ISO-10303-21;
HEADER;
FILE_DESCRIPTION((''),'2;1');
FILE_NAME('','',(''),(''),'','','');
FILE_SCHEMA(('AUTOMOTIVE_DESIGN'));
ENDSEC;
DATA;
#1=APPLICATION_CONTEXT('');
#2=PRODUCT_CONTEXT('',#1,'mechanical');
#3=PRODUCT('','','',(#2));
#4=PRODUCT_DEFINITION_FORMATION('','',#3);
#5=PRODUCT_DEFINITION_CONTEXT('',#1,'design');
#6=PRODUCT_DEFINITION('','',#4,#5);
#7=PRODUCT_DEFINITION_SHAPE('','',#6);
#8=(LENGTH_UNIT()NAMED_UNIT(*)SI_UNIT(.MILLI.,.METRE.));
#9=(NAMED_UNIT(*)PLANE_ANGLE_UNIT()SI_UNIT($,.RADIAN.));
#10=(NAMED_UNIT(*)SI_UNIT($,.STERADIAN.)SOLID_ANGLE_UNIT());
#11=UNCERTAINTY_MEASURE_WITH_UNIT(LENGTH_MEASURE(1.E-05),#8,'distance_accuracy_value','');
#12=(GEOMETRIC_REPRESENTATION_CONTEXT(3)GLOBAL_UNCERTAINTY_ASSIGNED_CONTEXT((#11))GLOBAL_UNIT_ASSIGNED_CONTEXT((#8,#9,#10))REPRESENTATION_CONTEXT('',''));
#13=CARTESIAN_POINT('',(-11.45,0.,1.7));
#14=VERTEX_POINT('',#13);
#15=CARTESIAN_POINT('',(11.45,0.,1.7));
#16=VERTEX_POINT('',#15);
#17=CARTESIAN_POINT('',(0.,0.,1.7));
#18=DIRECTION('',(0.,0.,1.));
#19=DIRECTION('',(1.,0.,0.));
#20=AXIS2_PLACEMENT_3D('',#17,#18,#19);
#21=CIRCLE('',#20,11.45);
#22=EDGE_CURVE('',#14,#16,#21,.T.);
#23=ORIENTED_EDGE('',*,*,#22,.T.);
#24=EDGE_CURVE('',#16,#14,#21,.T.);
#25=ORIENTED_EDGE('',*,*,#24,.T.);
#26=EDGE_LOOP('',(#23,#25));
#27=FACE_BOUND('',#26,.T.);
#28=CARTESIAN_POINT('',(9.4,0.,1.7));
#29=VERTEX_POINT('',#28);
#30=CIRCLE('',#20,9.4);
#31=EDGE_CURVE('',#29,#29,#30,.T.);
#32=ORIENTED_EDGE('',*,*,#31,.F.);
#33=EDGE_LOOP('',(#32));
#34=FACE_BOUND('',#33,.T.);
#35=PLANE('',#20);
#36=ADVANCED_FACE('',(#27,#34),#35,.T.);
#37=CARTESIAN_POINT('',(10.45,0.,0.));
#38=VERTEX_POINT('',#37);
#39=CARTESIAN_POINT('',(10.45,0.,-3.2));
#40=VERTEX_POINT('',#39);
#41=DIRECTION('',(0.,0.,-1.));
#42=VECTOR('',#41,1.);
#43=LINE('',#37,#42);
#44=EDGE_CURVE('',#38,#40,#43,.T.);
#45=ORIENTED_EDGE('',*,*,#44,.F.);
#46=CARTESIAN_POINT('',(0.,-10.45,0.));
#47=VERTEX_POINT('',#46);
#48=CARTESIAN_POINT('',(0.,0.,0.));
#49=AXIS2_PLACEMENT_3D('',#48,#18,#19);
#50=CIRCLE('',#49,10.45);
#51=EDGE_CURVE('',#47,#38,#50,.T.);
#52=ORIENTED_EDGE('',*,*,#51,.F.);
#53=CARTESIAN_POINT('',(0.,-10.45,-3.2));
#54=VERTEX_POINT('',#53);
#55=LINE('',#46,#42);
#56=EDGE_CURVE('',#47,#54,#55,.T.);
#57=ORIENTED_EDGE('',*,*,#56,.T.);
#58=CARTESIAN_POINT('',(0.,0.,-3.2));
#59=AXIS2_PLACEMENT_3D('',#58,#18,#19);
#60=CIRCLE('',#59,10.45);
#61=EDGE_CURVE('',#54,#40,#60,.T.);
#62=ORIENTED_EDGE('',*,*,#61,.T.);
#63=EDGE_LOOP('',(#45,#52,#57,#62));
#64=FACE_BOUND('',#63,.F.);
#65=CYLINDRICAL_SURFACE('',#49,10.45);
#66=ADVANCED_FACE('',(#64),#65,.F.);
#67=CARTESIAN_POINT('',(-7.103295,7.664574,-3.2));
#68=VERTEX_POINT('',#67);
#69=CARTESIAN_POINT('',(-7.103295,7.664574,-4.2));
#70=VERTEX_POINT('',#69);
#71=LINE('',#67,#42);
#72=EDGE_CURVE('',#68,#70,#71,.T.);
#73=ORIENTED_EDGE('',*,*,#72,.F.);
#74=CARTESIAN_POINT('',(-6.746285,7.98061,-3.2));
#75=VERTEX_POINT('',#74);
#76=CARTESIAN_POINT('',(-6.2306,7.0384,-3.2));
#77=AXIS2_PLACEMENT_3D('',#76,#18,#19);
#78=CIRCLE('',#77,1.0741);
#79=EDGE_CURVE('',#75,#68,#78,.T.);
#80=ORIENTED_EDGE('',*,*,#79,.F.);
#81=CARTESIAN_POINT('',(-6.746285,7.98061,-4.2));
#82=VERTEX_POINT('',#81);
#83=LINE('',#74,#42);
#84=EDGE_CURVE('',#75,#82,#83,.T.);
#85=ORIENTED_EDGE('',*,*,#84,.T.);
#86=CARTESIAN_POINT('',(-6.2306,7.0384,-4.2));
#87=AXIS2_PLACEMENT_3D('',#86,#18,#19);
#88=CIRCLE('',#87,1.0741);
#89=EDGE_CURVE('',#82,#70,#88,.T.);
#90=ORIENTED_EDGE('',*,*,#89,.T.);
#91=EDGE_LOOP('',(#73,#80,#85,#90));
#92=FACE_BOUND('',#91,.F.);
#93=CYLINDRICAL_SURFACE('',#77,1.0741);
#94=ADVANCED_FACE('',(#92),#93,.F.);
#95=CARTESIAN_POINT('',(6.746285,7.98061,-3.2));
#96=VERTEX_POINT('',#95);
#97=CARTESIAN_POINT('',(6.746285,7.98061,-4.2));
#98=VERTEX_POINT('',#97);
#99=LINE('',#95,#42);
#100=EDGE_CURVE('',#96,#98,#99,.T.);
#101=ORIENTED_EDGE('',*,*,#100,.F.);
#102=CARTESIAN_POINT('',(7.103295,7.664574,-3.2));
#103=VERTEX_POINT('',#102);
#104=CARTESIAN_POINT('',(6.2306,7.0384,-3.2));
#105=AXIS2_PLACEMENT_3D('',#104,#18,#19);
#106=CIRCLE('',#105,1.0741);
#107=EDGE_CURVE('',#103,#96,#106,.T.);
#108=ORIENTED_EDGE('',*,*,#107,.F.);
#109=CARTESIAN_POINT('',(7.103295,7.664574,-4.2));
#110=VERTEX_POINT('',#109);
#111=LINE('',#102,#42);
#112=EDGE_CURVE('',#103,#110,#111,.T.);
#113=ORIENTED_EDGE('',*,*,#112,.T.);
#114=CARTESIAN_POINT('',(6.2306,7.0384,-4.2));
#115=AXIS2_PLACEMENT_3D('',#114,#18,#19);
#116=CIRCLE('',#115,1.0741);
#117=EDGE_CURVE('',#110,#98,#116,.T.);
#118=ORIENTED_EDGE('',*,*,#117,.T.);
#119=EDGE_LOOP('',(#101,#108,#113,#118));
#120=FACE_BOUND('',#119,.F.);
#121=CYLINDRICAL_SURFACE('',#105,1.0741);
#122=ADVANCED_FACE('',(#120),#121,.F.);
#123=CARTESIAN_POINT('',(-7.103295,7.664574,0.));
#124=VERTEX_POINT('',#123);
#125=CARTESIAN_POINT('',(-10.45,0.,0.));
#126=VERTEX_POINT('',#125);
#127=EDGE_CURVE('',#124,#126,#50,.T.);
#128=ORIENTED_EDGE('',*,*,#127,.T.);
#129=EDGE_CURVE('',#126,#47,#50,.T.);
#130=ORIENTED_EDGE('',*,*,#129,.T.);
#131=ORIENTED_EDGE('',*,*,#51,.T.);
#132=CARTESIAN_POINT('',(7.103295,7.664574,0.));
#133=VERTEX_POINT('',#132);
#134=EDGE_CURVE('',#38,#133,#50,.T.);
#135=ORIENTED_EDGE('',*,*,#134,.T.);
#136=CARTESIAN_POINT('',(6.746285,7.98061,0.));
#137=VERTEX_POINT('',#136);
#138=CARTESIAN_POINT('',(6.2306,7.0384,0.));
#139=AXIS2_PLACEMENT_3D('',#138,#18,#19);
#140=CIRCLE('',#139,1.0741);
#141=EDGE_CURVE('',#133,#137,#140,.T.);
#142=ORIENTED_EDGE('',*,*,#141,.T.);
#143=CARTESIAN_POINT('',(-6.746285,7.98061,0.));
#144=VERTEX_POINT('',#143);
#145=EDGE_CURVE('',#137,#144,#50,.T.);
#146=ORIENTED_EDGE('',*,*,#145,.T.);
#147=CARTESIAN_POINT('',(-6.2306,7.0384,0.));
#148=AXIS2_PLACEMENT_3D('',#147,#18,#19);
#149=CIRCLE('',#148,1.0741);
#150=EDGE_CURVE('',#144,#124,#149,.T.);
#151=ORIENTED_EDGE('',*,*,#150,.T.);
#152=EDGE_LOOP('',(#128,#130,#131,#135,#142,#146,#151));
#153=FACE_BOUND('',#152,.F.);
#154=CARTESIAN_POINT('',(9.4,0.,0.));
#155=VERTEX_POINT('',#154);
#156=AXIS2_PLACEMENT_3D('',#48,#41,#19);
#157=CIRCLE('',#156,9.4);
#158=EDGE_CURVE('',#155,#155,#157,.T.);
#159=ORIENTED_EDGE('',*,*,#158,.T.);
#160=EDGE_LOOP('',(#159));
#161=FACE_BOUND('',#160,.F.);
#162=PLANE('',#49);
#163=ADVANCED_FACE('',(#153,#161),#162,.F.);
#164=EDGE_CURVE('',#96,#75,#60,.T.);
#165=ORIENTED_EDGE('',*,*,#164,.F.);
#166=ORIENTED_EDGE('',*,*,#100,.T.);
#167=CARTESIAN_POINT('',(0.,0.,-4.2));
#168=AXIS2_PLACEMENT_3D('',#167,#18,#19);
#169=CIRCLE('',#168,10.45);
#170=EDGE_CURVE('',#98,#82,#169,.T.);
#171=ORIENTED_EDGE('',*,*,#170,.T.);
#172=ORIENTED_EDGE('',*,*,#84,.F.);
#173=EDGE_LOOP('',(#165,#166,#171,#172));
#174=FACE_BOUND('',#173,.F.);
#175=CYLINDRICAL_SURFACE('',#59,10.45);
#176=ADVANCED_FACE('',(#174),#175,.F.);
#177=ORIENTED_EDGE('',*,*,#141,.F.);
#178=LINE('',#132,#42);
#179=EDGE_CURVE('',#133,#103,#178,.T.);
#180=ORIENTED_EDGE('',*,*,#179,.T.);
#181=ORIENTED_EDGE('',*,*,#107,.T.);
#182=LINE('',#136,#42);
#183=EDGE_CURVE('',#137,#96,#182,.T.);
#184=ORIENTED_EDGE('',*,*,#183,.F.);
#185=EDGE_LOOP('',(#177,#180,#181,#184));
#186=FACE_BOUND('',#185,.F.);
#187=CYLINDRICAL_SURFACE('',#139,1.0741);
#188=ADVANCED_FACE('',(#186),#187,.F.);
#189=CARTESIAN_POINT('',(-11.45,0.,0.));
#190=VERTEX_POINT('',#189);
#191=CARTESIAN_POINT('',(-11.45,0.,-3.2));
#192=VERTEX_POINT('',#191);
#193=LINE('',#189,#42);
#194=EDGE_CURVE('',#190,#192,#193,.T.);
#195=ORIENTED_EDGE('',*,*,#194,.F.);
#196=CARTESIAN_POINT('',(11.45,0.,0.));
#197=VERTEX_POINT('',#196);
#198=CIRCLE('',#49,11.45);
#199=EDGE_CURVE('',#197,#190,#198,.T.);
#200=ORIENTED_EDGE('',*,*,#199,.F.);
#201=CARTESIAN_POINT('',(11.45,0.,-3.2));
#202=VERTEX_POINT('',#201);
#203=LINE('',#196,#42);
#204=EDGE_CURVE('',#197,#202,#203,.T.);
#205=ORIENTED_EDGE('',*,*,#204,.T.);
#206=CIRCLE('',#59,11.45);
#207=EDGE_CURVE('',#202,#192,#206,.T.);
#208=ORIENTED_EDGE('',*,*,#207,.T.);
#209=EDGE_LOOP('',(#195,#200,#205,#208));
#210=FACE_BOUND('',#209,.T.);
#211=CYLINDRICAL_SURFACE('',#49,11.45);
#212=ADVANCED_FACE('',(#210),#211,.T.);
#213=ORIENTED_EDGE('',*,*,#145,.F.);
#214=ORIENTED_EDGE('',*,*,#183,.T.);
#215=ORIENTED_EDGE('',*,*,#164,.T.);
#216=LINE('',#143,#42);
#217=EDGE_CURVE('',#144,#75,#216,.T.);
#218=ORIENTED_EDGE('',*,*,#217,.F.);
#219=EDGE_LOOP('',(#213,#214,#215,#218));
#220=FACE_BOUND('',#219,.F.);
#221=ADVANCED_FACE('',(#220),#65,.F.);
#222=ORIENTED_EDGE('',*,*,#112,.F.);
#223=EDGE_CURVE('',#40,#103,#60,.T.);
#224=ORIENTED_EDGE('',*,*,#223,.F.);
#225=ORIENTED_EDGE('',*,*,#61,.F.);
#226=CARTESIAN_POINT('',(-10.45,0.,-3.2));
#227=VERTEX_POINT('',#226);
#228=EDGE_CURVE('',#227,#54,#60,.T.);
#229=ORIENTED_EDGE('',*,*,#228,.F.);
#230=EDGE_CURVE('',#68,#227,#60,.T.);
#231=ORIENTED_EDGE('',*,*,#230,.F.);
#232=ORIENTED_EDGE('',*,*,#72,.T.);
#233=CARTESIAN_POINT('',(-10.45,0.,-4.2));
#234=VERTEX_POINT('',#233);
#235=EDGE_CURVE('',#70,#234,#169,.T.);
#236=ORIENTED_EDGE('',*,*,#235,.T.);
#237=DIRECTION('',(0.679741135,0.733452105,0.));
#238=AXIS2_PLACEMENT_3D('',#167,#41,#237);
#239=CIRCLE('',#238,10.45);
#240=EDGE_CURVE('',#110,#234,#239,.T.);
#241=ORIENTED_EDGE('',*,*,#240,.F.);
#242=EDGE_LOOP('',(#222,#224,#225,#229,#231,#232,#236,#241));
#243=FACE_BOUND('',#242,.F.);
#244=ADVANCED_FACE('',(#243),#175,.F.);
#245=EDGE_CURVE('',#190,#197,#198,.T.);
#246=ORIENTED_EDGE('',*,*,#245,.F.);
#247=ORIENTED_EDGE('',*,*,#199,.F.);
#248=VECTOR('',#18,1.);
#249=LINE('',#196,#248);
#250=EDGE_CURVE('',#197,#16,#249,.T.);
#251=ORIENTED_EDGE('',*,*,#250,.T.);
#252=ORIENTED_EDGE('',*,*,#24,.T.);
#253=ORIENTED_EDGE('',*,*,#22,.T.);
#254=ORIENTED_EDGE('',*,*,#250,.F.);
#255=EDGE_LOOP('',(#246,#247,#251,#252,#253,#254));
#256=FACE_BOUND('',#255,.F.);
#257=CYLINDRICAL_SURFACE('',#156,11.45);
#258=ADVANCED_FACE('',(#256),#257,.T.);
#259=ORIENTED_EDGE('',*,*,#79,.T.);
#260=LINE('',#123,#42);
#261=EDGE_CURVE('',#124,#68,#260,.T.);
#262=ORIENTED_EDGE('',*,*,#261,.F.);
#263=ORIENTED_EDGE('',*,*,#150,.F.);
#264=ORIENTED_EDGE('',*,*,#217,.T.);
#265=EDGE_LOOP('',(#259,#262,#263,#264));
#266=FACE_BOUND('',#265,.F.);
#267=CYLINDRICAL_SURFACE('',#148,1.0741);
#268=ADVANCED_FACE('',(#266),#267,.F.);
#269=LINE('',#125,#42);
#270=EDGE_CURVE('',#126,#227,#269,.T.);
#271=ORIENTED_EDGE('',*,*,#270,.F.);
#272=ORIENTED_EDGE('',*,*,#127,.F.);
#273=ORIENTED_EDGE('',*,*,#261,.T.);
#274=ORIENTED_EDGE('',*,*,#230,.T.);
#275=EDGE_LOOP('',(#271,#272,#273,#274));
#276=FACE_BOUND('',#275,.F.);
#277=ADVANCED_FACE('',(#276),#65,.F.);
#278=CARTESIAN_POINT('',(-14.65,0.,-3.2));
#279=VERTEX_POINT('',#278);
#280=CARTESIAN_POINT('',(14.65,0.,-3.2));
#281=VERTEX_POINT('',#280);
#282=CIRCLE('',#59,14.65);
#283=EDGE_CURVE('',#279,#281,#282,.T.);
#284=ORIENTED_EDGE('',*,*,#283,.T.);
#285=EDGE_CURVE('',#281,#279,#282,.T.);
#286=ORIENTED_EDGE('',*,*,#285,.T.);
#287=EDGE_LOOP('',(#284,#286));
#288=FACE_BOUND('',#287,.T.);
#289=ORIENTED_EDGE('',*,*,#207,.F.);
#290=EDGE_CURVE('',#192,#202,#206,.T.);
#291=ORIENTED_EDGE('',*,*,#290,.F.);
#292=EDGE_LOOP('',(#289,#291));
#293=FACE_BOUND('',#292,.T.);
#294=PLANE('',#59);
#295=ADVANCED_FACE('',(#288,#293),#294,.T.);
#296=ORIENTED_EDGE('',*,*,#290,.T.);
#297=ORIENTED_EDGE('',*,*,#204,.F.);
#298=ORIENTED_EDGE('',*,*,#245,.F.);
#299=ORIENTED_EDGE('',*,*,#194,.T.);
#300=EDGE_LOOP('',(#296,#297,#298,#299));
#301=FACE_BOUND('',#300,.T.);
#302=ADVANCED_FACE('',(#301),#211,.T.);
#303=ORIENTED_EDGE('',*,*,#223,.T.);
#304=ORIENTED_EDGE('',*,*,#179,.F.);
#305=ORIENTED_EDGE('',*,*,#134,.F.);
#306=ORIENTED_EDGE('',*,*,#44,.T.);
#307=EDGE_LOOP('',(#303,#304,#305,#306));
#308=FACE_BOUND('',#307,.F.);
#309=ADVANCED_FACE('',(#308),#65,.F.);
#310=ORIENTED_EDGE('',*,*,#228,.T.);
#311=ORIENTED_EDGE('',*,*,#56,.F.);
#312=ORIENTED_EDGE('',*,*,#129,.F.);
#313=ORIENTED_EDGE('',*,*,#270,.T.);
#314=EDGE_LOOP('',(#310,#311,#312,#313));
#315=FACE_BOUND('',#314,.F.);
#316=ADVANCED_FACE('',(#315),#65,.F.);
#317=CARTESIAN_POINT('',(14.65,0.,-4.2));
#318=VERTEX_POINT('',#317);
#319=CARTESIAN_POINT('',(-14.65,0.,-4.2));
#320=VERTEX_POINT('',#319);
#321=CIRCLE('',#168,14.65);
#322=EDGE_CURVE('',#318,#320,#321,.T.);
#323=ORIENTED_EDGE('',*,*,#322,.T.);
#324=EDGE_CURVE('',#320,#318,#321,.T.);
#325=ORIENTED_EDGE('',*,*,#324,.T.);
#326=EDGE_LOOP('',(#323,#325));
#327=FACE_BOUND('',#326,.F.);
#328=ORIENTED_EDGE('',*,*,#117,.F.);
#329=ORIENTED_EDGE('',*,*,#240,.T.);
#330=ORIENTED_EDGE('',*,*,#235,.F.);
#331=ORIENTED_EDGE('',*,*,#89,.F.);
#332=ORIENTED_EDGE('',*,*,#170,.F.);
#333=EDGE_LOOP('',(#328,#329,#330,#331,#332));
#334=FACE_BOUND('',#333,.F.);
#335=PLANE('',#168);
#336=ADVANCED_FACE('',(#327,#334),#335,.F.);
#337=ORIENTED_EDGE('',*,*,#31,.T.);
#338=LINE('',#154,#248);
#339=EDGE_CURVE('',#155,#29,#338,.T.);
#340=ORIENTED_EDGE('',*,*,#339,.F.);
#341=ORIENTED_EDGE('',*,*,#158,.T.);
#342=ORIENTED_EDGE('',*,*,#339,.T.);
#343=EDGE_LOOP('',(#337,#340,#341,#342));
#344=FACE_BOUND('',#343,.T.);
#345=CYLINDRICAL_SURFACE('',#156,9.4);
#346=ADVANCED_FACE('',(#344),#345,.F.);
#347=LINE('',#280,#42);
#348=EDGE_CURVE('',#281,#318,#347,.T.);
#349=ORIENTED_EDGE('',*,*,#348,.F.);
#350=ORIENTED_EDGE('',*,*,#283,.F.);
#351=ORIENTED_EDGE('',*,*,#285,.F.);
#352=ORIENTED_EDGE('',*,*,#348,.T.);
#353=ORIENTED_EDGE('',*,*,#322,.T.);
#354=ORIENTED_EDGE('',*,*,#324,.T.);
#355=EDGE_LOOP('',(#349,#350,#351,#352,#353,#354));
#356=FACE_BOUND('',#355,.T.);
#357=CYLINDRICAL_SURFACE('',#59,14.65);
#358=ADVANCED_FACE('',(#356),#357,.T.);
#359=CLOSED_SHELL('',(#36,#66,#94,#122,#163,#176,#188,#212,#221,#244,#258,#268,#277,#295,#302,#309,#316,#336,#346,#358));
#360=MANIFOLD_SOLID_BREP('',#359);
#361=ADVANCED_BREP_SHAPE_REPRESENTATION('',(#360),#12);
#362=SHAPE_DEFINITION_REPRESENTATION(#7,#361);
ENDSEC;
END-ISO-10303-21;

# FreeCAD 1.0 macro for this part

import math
import FreeCAD as App
import Part
import Sketcher

V = App.Vector
Q = App.Units.Quantity

doc = App.newDocument("Part")
params = doc.addObject("Spreadsheet::Sheet", "Params")
for row, (alias, value) in enumerate([
    ("sketch1_diameter", "18.8 mm"),
    ("sketch1_diameter2", "22.9 mm"),
    ("pad1_length", "1.7 mm"),
    ("sketch2_radius", "10.45 mm"),
    ("sketch2_diameter", "22.9 mm"),
    ("pad2_length", "3.2 mm"),
    ("sketch3_radius", "10.45 mm"),
    ("sketch3_diameter", "29.3 mm"),
    ("pad3_length", "1 mm"),
], start=1):
    params.set(f"A{row}", alias)
    params.set(f"B{row}", "=" + value)
    params.setAlias(f"B{row}", alias)

body = doc.addObject("PartDesign::Body", "Body")

# Sketch on XY plane
sketch1 = body.newObject("Sketcher::SketchObject", "Sketch")
sketch1.AttachmentSupport = (doc.getObject("XY_Plane"), [""])
sketch1.MapMode = "FlatFace"
sketch1.addGeometry([
    Part.Circle(V(0, 0, 0), V(0, 0, 1), 11),
    Part.Circle(V(0, 0, 0), V(0, 0, 1), 9),
], False)
sketch1.addConstraint([
    Sketcher.Constraint("Coincident", 0, 3, -1, 1),
    Sketcher.Constraint("Coincident", 1, 3, -1, 1),
    Sketcher.Constraint("Diameter", 1, Q("18.8 mm")),
    Sketcher.Constraint("Diameter", 0, Q("22.9 mm")),
])
sketch1.setExpression("Constraints[2]", "Params.sketch1_diameter")
sketch1.setExpression("Constraints[3]", "Params.sketch1_diameter2")
pad1 = body.newObject("PartDesign::Pad", "Pad")
pad1.Profile = sketch1
pad1.setExpression("Length", "Params.pad1_length")

# Sketch on XY plane
sketch2 = body.newObject("Sketcher::SketchObject", "Sketch001")
sketch2.AttachmentSupport = (doc.getObject("XY_Plane"), [""])
sketch2.MapMode = "FlatFace"
sketch2.addGeometry([
    Part.Circle(V(0, 0, 0), V(0, 0, 1), 11.45),  # 0
    Part.ArcOfCircle(Part.Circle(V(6.23, 7.04, 0), V(0, 0, 1), 1.07), math.radians(36), math.radians(61)),  # 1
    Part.ArcOfCircle(Part.Circle(V(0, 0, 0), V(0, 0, 1), 10.45), math.radians(180), math.radians(407)),  # 2
    Part.ArcOfCircle(Part.Circle(V(0, 0, 0), V(0, 0, 1), 10.45), math.radians(133), math.radians(180)),  # 3
    Part.ArcOfCircle(Part.Circle(V(-6.23, 7.04, 0), V(0, 0, 1), 1.07), math.radians(119), math.radians(144)),  # 4
    Part.ArcOfCircle(Part.Circle(V(0, 0, 0), V(0, 0, 1), 10.45), math.radians(50), math.radians(130)),  # 5
], False)
sketch2.addConstraint([
    Sketcher.Constraint("Coincident", 1, 1, 2, 2),
    Sketcher.Constraint("Tangent", 2, 1, 3, 2),
    Sketcher.Constraint("Coincident", 3, 1, 4, 2),
    Sketcher.Constraint("Coincident", 4, 1, 5, 2),
    Sketcher.Constraint("Coincident", 5, 1, 1, 2),
    Sketcher.Constraint("Coincident", 0, 3, -1, 1),
    Sketcher.Constraint("Coincident", 2, 3, -1, 1),
    Sketcher.Constraint("Coincident", 5, 3, -1, 1),
    Sketcher.Constraint("Equal", 2, 3),
    Sketcher.Constraint("Equal", 1, 4),
    Sketcher.Constraint("Equal", 3, 5),
    Sketcher.Constraint("Symmetric", 1, 3, 4, 3, -2),
    Sketcher.Constraint("PointOnObject", 2, 1, -1),
    Sketcher.Constraint("Radius", 2, Q("10.45 mm")),
    Sketcher.Constraint("Diameter", 0, Q("22.9 mm")),
    Sketcher.Constraint("Radius", 1, Q("1.074 mm")),
    Sketcher.Constraint("DistanceX", 3, 1, 4, 1, Q("0.357 mm")),
    Sketcher.Constraint("DistanceY", 3, 1, 4, 1, Q("0.316 mm")),
])
sketch2.setExpression("Constraints[13]", "Params.sketch2_radius")
sketch2.setExpression("Constraints[14]", "Params.sketch2_diameter")
pad2 = body.newObject("PartDesign::Pad", "Pad001")
pad2.Profile = sketch2
pad2.setExpression("Length", "Params.pad2_length")
pad2.Reversed = True

# Sketch on XY plane
sketch3 = body.newObject("Sketcher::SketchObject", "Sketch002")
sketch3.AttachmentSupport = (doc.getObject("XY_Plane"), [""])
sketch3.MapMode = "FlatFace"
sketch3.AttachmentOffset = App.Placement(V(0, 0, -3.2), App.Rotation())
sketch3.addGeometry([
    Part.Circle(V(0, 0, 0), V(0, 0, 1), 14.65),  # 0
    Part.ArcOfCircle(Part.Circle(V(6.23, 7.04, 0), V(0, 0, 1), 1.07), math.radians(36), math.radians(61)),  # 1
    Part.ArcOfCircle(Part.Circle(V(0, 0, 0), V(0, 0, 1), 10.45), math.radians(180), math.radians(407)),  # 2
    Part.ArcOfCircle(Part.Circle(V(0, 0, 0), V(0, 0, 1), 10.45), math.radians(133), math.radians(180)),  # 3
    Part.ArcOfCircle(Part.Circle(V(-6.23, 7.04, 0), V(0, 0, 1), 1.07), math.radians(119), math.radians(144)),  # 4
    Part.ArcOfCircle(Part.Circle(V(0, 0, 0), V(0, 0, 1), 10.45), math.radians(50), math.radians(130)),  # 5
], False)
sketch3.addConstraint([
    Sketcher.Constraint("Coincident", 1, 1, 2, 2),
    Sketcher.Constraint("Tangent", 2, 1, 3, 2),
    Sketcher.Constraint("Coincident", 3, 1, 4, 2),
    Sketcher.Constraint("Coincident", 4, 1, 5, 2),
    Sketcher.Constraint("Coincident", 5, 1, 1, 2),
    Sketcher.Constraint("Coincident", 0, 3, -1, 1),
    Sketcher.Constraint("Coincident", 2, 3, -1, 1),
    Sketcher.Constraint("Coincident", 5, 3, -1, 1),
    Sketcher.Constraint("Equal", 2, 3),
    Sketcher.Constraint("Equal", 1, 4),
    Sketcher.Constraint("Equal", 3, 5),
    Sketcher.Constraint("Symmetric", 1, 3, 4, 3, -2),
    Sketcher.Constraint("PointOnObject", 2, 1, -1),
    Sketcher.Constraint("Radius", 2, Q("10.45 mm")),
    Sketcher.Constraint("Diameter", 0, Q("29.3 mm")),
    Sketcher.Constraint("Radius", 1, Q("1.074 mm")),
    Sketcher.Constraint("DistanceX", 3, 1, 4, 1, Q("0.357 mm")),
    Sketcher.Constraint("DistanceY", 3, 1, 4, 1, Q("0.316 mm")),
])
sketch3.setExpression("Constraints[13]", "Params.sketch3_radius")
sketch3.setExpression("Constraints[14]", "Params.sketch3_diameter")
pad3 = body.newObject("PartDesign::Pad", "Pad002")
pad3.Profile = sketch3
pad3.setExpression("Length", "Params.pad3_length")
pad3.Reversed = True

doc.recompute()
